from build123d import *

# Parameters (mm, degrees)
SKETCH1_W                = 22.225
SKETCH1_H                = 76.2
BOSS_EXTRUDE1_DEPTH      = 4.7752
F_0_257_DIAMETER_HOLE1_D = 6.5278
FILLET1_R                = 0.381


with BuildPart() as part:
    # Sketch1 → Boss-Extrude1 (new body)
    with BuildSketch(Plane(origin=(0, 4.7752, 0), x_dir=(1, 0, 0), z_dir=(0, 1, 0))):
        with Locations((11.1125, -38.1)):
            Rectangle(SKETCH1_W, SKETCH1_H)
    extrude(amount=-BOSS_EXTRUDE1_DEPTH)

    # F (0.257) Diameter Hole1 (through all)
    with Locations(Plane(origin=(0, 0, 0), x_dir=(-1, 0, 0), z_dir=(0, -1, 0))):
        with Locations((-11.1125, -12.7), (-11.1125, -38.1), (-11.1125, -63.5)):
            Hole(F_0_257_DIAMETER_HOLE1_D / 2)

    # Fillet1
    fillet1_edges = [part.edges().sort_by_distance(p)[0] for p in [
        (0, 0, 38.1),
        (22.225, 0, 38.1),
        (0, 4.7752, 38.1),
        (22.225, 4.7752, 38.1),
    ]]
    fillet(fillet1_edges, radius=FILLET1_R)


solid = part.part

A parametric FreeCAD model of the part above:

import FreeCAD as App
import Part
import Sketcher

V = App.Vector
Q = App.Units.Quantity


def edges_at(feature, points):
    """Names of the edges that pass closest to the given points."""
    edges = feature.Shape.Edges
    near = lambda p: min(range(len(edges)), key=lambda i: edges[i].distToShape(Part.Vertex(*p))[0])
    return sorted({f"Edge{near(p) + 1}" for p in points})


def add_polygon(sketch, points):
    """Adds a closed chain of lines whose ends are joined by coincident constraints."""
    first, n = sketch.GeometryCount, len(points)
    for a, b in zip(points, points[1:] + points[:1]):
        sketch.addGeometry(Part.LineSegment(App.Vector(*a, 0), App.Vector(*b, 0)), False)
    for i in range(n):
        sketch.addConstraint(Sketcher.Constraint("Coincident", first + i, 2, first + (i + 1) % n, 1))

doc = App.newDocument("Part")
body = doc.addObject("PartDesign::Body", "Body")

sketch1 = doc.addObject("Sketcher::SketchObject", "Sketch")
body.addObject(sketch1)
sketch1.AttachmentSupport = (doc.XZ_Plane, [""])
sketch1.MapMode = "FlatFace"
sketch1.AttachmentOffset = App.Placement(V(0, 0, -0.188 * 25.4), App.Rotation())
add_polygon(sketch1, [(0, 0), (0, 76), (22, 76), (22, 0)])
sketch1.addConstraint([
    Sketcher.Constraint("Vertical", 0),
    Sketcher.Constraint("Horizontal", 1),
    Sketcher.Constraint("Vertical", 2),
    Sketcher.Constraint("Horizontal", 3),
    Sketcher.Constraint("Coincident", 3, 2, -1, 1),
    Sketcher.Constraint("DistanceY", 0, 1, 0, 2, Q("3 in")),
    Sketcher.Constraint("DistanceX", 1, 1, 1, 2, Q("0.875 in")),
])
pad1 = doc.addObject("PartDesign::Pad", "Pad")
body.addObject(pad1)
pad1.Profile = sketch1
pad1.Length = Q("0.188 in")

sketch2 = doc.addObject("Sketcher::SketchObject", "Sketch001")
body.addObject(sketch2)
sketch2.AttachmentSupport = (doc.XZ_Plane, [""])
sketch2.MapMode = "FlatFace"
sketch2.addGeometry([
    Part.Circle(V(11.1, 12.7, 0), V(0, 0, 1), 3.3),
    Part.Circle(V(11.1, 38.1, 0), V(0, 0, 1), 3.3),
    Part.Circle(V(11.1, 63.5, 0), V(0, 0, 1), 3.3),
], False)
sketch2.addConstraint([
    Sketcher.Constraint("Equal", 0, 1),
    Sketcher.Constraint("Equal", 1, 2),
    Sketcher.Constraint("Vertical", 0, 3, 1, 3),
    Sketcher.Constraint("Vertical", 1, 3, 2, 3),
    Sketcher.Constraint("Diameter", 0, Q("0.257 in")),
    Sketcher.Constraint("DistanceY", 0, 3, 1, 3, Q("1 in")),
    Sketcher.Constraint("DistanceY", 1, 3, 2, 3, Q("1 in")),
    Sketcher.Constraint("DistanceY", -1, 1, 0, 3, Q("0.5 in")),
    Sketcher.Constraint("DistanceX", -1, 1, 0, 3, Q("0.4375 in")),
])
doc.recompute()
hole = doc.addObject("PartDesign::Hole", "Hole")
body.addObject(hole)
hole.Profile = sketch2
hole.ThreadType = "None"
hole.Diameter = Q("0.257 in")
hole.DepthType = "ThroughAll"
doc.recompute()

fillet = doc.addObject("PartDesign::Fillet", "Fillet")
body.addObject(fillet)
fillet.Base = (hole, edges_at(hole, [
    (0, 0, 38.1),
    (22.225, 0, 38.1),
    (0, 4.775, 38.1),
    (22.225, 4.775, 38.1),
]))
fillet.Radius = Q("0.015 in")

doc.recompute()
